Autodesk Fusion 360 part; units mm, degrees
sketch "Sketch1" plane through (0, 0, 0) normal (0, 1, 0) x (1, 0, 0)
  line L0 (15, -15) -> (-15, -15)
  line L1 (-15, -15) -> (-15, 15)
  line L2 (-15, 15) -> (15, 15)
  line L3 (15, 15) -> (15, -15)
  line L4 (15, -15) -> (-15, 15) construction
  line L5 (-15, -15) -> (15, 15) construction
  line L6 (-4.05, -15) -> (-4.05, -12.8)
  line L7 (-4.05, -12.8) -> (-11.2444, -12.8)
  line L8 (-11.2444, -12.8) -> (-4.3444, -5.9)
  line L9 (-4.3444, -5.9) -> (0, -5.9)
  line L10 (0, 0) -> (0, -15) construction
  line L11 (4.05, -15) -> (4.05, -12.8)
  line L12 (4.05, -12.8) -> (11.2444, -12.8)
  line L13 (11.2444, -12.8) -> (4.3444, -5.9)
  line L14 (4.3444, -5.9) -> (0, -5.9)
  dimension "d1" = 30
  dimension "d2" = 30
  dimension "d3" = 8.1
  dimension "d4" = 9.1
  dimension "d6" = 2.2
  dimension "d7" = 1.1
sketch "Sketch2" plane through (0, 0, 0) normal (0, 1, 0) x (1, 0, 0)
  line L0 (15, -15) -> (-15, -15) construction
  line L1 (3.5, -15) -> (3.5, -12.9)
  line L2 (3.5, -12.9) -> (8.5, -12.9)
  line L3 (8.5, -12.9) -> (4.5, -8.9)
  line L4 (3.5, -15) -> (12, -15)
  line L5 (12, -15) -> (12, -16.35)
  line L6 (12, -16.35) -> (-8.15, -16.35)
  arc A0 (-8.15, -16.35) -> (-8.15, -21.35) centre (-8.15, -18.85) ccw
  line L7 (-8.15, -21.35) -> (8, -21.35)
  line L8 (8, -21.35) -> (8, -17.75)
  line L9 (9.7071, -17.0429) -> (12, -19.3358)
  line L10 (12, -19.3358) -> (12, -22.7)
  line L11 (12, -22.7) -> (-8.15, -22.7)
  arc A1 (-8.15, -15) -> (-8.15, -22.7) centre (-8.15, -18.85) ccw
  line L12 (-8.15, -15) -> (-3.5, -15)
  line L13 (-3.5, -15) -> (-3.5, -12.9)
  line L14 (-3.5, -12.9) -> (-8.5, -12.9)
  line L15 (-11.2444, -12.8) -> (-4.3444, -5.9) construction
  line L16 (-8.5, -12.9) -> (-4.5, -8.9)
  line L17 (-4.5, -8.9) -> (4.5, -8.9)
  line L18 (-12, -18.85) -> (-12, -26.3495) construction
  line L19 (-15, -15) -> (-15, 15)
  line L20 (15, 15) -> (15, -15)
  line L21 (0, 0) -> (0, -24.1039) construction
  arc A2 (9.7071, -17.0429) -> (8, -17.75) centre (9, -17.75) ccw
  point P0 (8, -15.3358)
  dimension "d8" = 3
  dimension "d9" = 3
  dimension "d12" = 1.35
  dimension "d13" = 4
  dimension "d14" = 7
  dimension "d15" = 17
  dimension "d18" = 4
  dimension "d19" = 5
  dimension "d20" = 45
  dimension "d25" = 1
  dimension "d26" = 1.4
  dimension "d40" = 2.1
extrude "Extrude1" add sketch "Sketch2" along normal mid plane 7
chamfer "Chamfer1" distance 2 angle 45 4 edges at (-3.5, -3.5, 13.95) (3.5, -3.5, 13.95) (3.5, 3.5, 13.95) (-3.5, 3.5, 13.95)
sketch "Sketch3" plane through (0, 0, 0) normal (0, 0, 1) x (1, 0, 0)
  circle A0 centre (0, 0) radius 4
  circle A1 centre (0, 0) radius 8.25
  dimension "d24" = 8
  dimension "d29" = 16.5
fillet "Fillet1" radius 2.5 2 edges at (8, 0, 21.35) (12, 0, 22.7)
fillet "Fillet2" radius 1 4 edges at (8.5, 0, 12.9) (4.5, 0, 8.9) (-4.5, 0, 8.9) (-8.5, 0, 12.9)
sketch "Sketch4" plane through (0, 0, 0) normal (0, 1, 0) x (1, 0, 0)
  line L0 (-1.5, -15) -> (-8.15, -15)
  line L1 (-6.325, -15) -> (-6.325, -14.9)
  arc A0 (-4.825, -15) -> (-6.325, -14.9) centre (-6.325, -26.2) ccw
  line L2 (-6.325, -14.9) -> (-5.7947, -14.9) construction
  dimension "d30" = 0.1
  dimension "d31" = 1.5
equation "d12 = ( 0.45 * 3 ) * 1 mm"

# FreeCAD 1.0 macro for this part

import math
import FreeCAD as App
import Part
import Sketcher
Q = App.Units.Quantity


def edges_at(feature, points):
    """Names of the edges that pass closest to the given points."""
    edges = feature.Shape.Edges
    near = lambda p: min(range(len(edges)), key=lambda i: edges[i].distToShape(Part.Vertex(*p))[0])
    return sorted({f"Edge{near(p) + 1}" for p in points})

doc = App.newDocument("Part")
params = doc.addObject("Spreadsheet::Sheet", "Params")
for row, (alias, value) in enumerate([
    ("sketch1_radius", "1 mm"),
    ("sketch1_radius2", "2.5 mm"),
    ("sketch1_width", "5 mm"),
    ("sketch1_height", "2.1 mm"),
    ("sketch1_height2", "1.35 mm"),
    ("pad1_length", "7 mm"),
    ("chamfer_size", "2 mm"),
    ("fillet_radius", "2.5 mm"),
    ("fillet2_radius", "1 mm"),
], start=1):
    params.set(f"A{row}", alias)
    params.set(f"B{row}", "=" + value)
    params.setAlias(f"B{row}", alias)

body = doc.addObject("PartDesign::Body", "Body")

sketch1 = body.newObject("Sketcher::SketchObject", "Sketch")
sketch1.AttachmentSupport = (doc.getObject("XZ_Plane"), [""])
sketch1.MapMode = "FlatFace"
sketch1.addGeometry([
    Part.LineSegment(App.Vector(12, 15, 0), App.Vector(3.5, 15, 0)),
    Part.LineSegment(App.Vector(3.5, 15, 0), App.Vector(3.5, 12.9, 0)),
    Part.LineSegment(App.Vector(3.5, 12.9, 0), App.Vector(8.5, 12.9, 0)),
    Part.LineSegment(App.Vector(8.5, 12.9, 0), App.Vector(4.5, 8.9, 0)),
    Part.LineSegment(App.Vector(4.5, 8.9, 0), App.Vector(-4.5, 8.9, 0)),
    Part.LineSegment(App.Vector(-4.5, 8.9, 0), App.Vector(-8.5, 12.9, 0)),
    Part.LineSegment(App.Vector(-8.5, 12.9, 0), App.Vector(-3.5, 12.9, 0)),
    Part.LineSegment(App.Vector(-3.5, 12.9, 0), App.Vector(-3.5, 15, 0)),
    Part.LineSegment(App.Vector(-3.5, 15, 0), App.Vector(-8.15, 15, 0)),
    Part.ArcOfCircle(Part.Circle(App.Vector(-8.15, 18.85, 0), App.Vector(0, 0, 1), 3.85), math.radians(90), math.radians(270)),
    Part.LineSegment(App.Vector(-8.15, 22.7, 0), App.Vector(12, 22.7, 0)),
    Part.LineSegment(App.Vector(12, 22.7, 0), App.Vector(12, 19.3358, 0)),
    Part.LineSegment(App.Vector(12, 19.3358, 0), App.Vector(9.7071, 17.0429, 0)),
    Part.ArcOfCircle(Part.Circle(App.Vector(9, 17.75, 0), App.Vector(0, 0, 1), 0.99999), math.radians(180), math.radians(315)),
    Part.LineSegment(App.Vector(8, 17.75, 0), App.Vector(8, 21.35, 0)),
    Part.LineSegment(App.Vector(8, 21.35, 0), App.Vector(-8.15, 21.35, 0)),
    Part.ArcOfCircle(Part.Circle(App.Vector(-8.15, 18.85, 0), App.Vector(0, 0, 1), 2.5), math.radians(90), math.radians(270)),
    Part.LineSegment(App.Vector(-8.15, 16.35, 0), App.Vector(12, 16.35, 0)),
    Part.LineSegment(App.Vector(12, 16.35, 0), App.Vector(12, 15, 0)),
], False)
sketch1.addConstraint([
    Sketcher.Constraint("Coincident", 0, 2, 1, 1),
    Sketcher.Constraint("Coincident", 1, 2, 2, 1),
    Sketcher.Constraint("Coincident", 2, 2, 3, 1),
    Sketcher.Constraint("Coincident", 3, 2, 4, 1),
    Sketcher.Constraint("Coincident", 4, 2, 5, 1),
    Sketcher.Constraint("Coincident", 5, 2, 6, 1),
    Sketcher.Constraint("Coincident", 6, 2, 7, 1),
    Sketcher.Constraint("Coincident", 7, 2, 8, 1),
    Sketcher.Constraint("Tangent", 8, 2, 9, 2),
    Sketcher.Constraint("Tangent", 9, 1, 10, 1),
    Sketcher.Constraint("Coincident", 10, 2, 11, 1),
    Sketcher.Constraint("Coincident", 11, 2, 12, 1),
    Sketcher.Constraint("Tangent", 12, 2, 13, 2),
    Sketcher.Constraint("Tangent", 13, 1, 14, 1),
    Sketcher.Constraint("Coincident", 14, 2, 15, 1),
    Sketcher.Constraint("Tangent", 15, 2, 16, 1),
    Sketcher.Constraint("Tangent", 16, 2, 17, 1),
    Sketcher.Constraint("Coincident", 17, 2, 18, 1),
    Sketcher.Constraint("Coincident", 18, 2, 0, 1),
    Sketcher.Constraint("Horizontal", 0),
    Sketcher.Constraint("Vertical", 1),
    Sketcher.Constraint("Horizontal", 2),
    Sketcher.Constraint("Horizontal", 4),
    Sketcher.Constraint("Horizontal", 6),
    Sketcher.Constraint("Vertical", 7),
    Sketcher.Constraint("Horizontal", 8),
    Sketcher.Constraint("Horizontal", 10),
    Sketcher.Constraint("Vertical", 11),
    Sketcher.Constraint("Vertical", 14),
    Sketcher.Constraint("Horizontal", 15),
    Sketcher.Constraint("Horizontal", 17),
    Sketcher.Constraint("Vertical", 18),
    Sketcher.Constraint("Coincident", 16, 3, 9, 3),
    Sketcher.Constraint("Symmetric", 2, 2, 5, 2, -2),
    Sketcher.Constraint("Symmetric", 0, 2, 7, 2, -2),
    Sketcher.Constraint("Perpendicular", 3, 5),
    Sketcher.Constraint("Perpendicular", 5, 12),
    Sketcher.Constraint("Vertical", 11, 2, 17, 2),
    Sketcher.Constraint("Equal", 3, 5),
    Sketcher.Constraint("Radius", 13, Q("1 mm")),
    Sketcher.Constraint("Radius", 16, Q("2.5 mm")),
    Sketcher.Constraint("DistanceX", 2, 1, 2, 2, Q("5 mm")),
    Sketcher.Constraint("DistanceY", 1, 2, 1, 1, Q("2.1 mm")),
    Sketcher.Constraint("DistanceX", 1, 2, 3, 2, Q("1 mm")),
    Sketcher.Constraint("DistanceX", 6, 2, 1, 2, Q("7 mm")),
    Sketcher.Constraint("DistanceX", 13, 3, 10, 2, Q("3 mm")),
    Sketcher.Constraint("DistanceY", 18, 2, 18, 1, Q("1.35 mm")),
    Sketcher.Constraint("DistanceY", 17, 2, 13, 3, Q("1.4 mm")),
    Sketcher.Constraint("DistanceX", 0, 2, 0, 1, Q("8.5 mm")),
    Sketcher.Constraint("DistanceY", -1, 1, 0, 2, Q("15 mm")),
    Sketcher.Constraint("DistanceX", 8, 2, 8, 1, Q("4.65 mm")),
])
sketch1.setExpression("Constraints[39]", "Params.sketch1_radius")
sketch1.setExpression("Constraints[40]", "Params.sketch1_radius2")
sketch1.setExpression("Constraints[41]", "Params.sketch1_width")
sketch1.setExpression("Constraints[42]", "Params.sketch1_height")
sketch1.setExpression("Constraints[46]", "Params.sketch1_height2")
pad1 = body.newObject("PartDesign::Pad", "Pad")
pad1.Profile = sketch1
pad1.setExpression("Length", "Params.pad1_length")
pad1.Midplane = True
doc.recompute()

chamfer = body.newObject("PartDesign::Chamfer", "Chamfer")
chamfer.Base = (pad1, edges_at(pad1, [
    (-3.5, -3.5, 13.95),
    (3.5, -3.5, 13.95),
    (3.5, 3.5, 13.95),
    (-3.5, 3.5, 13.95),
]))
chamfer.setExpression("Size", "Params.chamfer_size")
doc.recompute()

fillet = body.newObject("PartDesign::Fillet", "Fillet")
fillet.Base = (chamfer, edges_at(chamfer, [(8, 0, 21.35), (12, 0, 22.7)]))
fillet.setExpression("Radius", "Params.fillet_radius")
doc.recompute()

fillet2 = body.newObject("PartDesign::Fillet", "Fillet001")
fillet2.Base = (fillet, edges_at(fillet, [
    (8.5, 0, 12.9),
    (4.5, 0, 8.9),
    (-4.5, 0, 8.9),
    (-8.5, 0, 12.9),
]))
fillet2.setExpression("Radius", "Params.fillet2_radius")

doc.recompute()
